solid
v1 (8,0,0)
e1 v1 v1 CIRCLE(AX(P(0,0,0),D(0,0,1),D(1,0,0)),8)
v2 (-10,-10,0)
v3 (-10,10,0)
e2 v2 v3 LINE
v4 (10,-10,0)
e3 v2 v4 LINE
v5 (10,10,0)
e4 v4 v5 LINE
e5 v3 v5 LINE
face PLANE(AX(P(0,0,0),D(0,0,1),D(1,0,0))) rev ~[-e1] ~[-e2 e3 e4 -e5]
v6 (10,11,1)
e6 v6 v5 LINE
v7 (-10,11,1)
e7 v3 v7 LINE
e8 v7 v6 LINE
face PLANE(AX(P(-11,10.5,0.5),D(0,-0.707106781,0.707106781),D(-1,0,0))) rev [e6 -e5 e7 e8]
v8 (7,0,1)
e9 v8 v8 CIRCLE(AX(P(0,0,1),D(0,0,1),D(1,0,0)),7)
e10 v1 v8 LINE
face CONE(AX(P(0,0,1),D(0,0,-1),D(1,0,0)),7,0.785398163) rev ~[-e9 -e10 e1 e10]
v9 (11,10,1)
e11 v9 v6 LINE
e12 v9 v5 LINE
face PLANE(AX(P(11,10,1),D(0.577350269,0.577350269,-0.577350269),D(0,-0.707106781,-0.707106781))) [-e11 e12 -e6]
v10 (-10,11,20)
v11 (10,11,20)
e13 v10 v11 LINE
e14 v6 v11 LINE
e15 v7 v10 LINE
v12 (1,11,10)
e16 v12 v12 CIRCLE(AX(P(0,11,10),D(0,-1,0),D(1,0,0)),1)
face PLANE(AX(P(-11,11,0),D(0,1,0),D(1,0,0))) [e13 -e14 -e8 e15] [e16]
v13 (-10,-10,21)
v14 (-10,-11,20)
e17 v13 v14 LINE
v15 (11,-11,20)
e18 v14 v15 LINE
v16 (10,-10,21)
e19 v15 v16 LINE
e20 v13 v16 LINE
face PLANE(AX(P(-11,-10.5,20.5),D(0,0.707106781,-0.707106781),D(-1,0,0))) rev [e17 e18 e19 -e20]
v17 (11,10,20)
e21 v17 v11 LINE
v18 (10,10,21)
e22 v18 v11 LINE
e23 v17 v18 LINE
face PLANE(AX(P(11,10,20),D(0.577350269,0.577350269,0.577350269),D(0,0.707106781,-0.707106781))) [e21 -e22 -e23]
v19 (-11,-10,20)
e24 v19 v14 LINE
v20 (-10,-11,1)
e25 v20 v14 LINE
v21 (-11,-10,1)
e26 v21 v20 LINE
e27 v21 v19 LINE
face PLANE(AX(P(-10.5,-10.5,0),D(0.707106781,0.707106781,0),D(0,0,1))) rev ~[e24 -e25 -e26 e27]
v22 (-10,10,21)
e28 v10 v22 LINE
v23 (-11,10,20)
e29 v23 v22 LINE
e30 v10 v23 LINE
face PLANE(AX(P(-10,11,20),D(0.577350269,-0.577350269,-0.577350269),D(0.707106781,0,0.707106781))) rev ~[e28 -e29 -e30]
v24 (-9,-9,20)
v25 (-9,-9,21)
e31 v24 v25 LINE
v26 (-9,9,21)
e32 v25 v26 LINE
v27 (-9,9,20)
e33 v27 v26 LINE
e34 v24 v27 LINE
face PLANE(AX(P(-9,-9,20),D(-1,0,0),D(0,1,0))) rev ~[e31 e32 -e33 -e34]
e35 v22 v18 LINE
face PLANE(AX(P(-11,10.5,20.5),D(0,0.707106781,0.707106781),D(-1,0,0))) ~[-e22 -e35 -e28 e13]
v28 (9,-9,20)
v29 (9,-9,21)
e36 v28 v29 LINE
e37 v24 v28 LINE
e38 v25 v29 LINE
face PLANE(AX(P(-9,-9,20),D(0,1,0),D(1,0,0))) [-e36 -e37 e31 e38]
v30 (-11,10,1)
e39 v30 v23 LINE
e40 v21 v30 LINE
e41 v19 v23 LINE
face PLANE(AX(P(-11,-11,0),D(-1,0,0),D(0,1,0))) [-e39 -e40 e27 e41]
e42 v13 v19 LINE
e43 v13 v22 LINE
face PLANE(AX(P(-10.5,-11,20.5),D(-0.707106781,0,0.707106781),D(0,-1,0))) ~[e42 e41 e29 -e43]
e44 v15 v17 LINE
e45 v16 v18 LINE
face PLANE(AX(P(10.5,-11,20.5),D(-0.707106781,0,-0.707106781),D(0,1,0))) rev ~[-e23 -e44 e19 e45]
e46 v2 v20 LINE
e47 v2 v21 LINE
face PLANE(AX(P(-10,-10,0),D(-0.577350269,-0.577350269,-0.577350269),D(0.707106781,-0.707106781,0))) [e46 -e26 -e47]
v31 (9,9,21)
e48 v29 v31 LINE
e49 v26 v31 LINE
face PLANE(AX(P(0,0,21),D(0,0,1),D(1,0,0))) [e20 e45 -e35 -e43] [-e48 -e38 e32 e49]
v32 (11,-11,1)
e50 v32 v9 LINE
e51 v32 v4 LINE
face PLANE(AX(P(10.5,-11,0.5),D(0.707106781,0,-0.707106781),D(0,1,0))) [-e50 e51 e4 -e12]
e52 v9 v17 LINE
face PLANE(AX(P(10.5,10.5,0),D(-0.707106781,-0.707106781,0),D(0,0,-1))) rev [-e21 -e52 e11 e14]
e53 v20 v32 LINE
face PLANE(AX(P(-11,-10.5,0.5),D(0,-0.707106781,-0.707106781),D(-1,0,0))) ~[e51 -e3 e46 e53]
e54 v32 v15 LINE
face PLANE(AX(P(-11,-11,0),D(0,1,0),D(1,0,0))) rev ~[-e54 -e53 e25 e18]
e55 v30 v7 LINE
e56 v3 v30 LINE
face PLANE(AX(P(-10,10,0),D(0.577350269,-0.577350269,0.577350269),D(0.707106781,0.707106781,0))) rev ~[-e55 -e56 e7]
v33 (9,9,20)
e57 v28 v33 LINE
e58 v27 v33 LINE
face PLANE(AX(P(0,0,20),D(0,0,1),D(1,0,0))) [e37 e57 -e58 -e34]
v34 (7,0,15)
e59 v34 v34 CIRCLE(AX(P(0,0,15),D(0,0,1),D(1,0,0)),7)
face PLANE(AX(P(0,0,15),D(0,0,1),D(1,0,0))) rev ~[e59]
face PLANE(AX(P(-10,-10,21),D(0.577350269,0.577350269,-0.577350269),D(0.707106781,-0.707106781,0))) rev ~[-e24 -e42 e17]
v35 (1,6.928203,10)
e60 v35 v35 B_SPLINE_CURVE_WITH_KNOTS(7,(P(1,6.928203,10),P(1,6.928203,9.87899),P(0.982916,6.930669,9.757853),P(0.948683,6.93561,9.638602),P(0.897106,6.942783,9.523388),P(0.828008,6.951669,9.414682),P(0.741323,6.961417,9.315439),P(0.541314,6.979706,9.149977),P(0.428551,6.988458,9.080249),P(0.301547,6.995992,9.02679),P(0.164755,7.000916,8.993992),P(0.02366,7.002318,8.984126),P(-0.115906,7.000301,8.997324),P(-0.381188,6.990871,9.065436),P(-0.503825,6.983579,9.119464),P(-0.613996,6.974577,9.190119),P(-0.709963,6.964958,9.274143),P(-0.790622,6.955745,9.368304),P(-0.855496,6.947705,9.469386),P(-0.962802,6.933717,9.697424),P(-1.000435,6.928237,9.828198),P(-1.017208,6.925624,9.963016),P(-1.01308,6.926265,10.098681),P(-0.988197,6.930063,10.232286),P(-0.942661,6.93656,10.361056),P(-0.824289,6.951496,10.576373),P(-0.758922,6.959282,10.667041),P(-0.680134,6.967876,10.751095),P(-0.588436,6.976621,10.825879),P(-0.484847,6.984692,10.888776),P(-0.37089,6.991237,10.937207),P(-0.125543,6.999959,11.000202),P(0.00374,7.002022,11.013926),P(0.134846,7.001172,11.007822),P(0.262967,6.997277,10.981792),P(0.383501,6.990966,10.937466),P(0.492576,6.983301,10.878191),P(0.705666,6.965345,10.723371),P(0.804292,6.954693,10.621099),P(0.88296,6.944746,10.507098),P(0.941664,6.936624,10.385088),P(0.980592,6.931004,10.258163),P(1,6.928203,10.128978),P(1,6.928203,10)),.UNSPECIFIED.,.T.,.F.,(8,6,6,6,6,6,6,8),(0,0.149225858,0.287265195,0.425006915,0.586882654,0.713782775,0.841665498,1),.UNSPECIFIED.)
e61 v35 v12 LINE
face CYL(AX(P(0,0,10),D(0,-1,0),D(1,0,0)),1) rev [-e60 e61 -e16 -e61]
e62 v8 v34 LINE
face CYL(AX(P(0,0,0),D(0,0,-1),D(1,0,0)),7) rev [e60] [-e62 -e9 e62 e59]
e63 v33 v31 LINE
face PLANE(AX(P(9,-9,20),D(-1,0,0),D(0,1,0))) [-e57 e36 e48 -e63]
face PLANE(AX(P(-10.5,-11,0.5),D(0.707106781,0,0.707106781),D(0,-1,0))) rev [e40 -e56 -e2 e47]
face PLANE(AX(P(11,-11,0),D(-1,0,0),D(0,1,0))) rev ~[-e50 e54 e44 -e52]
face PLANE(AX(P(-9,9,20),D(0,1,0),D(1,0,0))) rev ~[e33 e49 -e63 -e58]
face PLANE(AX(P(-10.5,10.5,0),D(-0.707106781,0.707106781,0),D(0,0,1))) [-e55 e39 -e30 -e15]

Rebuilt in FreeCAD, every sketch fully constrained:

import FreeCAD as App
import Part
import Sketcher
Q = App.Units.Quantity


def edges_at(feature, points):
    """Names of the edges that pass closest to the given points."""
    edges = feature.Shape.Edges
    near = lambda p: min(range(len(edges)), key=lambda i: edges[i].distToShape(Part.Vertex(*p))[0])
    return sorted({f"Edge{near(p) + 1}" for p in points})

doc = App.newDocument("Part")
body = doc.addObject("PartDesign::Body", "Body")

sketch1 = doc.addObject("Sketcher::SketchObject", "Sketch")
body.addObject(sketch1)
sketch1.AttachmentSupport = (doc.XZ_Plane, [""])
sketch1.MapMode = "FlatFace"
sketch1.addGeometry(Part.Circle(App.Vector(0, 10, 0), App.Vector(0, 0, 1), 1), False)
sketch1.addConstraint([
    Sketcher.Constraint("PointOnObject", 0, 3, -2),
    Sketcher.Constraint("Diameter", 0, Q("2 mm")),
    Sketcher.Constraint("DistanceY", -1, 1, 0, 3, Q("10 mm")),
])
pad1 = doc.addObject("PartDesign::Pad", "Pad")
body.addObject(pad1)
pad1.Profile = sketch1
pad1.Length = 28
pad1.Reversed = True
body2 = doc.addObject("PartDesign::Body", "Body001")

sketch2 = doc.addObject("Sketcher::SketchObject", "Sketch001")
body2.addObject(sketch2)
sketch2.AttachmentSupport = (doc.getObject("XY_Plane001"), [""])
sketch2.MapMode = "FlatFace"
sketch2.addGeometry(Part.Circle(App.Vector(0, 0, 0), App.Vector(0, 0, 1), 7), False)
sketch2.addConstraint([
    Sketcher.Constraint("Coincident", 0, 3, -1, 1),
    Sketcher.Constraint("Diameter", 0, Q("14 mm")),
])
pad2 = doc.addObject("PartDesign::Pad", "Pad001")
body2.addObject(pad2)
pad2.Profile = sketch2
pad2.Length = 15
body3 = doc.addObject("PartDesign::Body", "Body002")

sketch3 = doc.addObject("Sketcher::SketchObject", "Sketch002")
body3.addObject(sketch3)
sketch3.AttachmentSupport = (doc.getObject("XY_Plane002"), [""])
sketch3.MapMode = "FlatFace"
sketch3.AttachmentOffset = App.Placement(App.Vector(0, 0, 20), App.Rotation())
sketch3.addGeometry([
    Part.LineSegment(App.Vector(2, 20, 0), App.Vector(2, 2, 0)),
    Part.LineSegment(App.Vector(2, 2, 0), App.Vector(20, 2, 0)),
    Part.LineSegment(App.Vector(20, 2, 0), App.Vector(20, 20, 0)),
    Part.LineSegment(App.Vector(20, 20, 0), App.Vector(2, 20, 0)),
], False)
sketch3.addConstraint([
    Sketcher.Constraint("Coincident", 0, 2, 1, 1),
    Sketcher.Constraint("Coincident", 1, 2, 2, 1),
    Sketcher.Constraint("Coincident", 2, 2, 3, 1),
    Sketcher.Constraint("Coincident", 3, 2, 0, 1),
    Sketcher.Constraint("Vertical", 0),
    Sketcher.Constraint("Horizontal", 1),
    Sketcher.Constraint("Vertical", 2),
    Sketcher.Constraint("Horizontal", 3),
    Sketcher.Constraint("Equal", 3, 0),
    Sketcher.Constraint("DistanceX", 1, 1, 1, 2, Q("18 mm")),
    Sketcher.Constraint("DistanceX", -1, 1, 0, 2, Q("2 mm")),
    Sketcher.Constraint("DistanceY", -1, 1, 0, 2, Q("2 mm")),
])
pad3 = doc.addObject("PartDesign::Pad", "Pad002")
body3.addObject(pad3)
pad3.Profile = sketch3
pad3.Length = 1
body4 = doc.addObject("PartDesign::Body", "Body003")

sketch4 = doc.addObject("Sketcher::SketchObject", "Sketch003")
body4.addObject(sketch4)
sketch4.AttachmentSupport = (doc.getObject("XY_Plane003"), [""])
sketch4.MapMode = "FlatFace"
sketch4.addGeometry([
    Part.LineSegment(App.Vector(0, 22, 0), App.Vector(0, 0, 0)),
    Part.LineSegment(App.Vector(0, 0, 0), App.Vector(22, 0, 0)),
    Part.LineSegment(App.Vector(22, 0, 0), App.Vector(22, 22, 0)),
    Part.LineSegment(App.Vector(22, 22, 0), App.Vector(0, 22, 0)),
], False)
sketch4.addConstraint([
    Sketcher.Constraint("Coincident", 0, 2, 1, 1),
    Sketcher.Constraint("Coincident", 1, 2, 2, 1),
    Sketcher.Constraint("Coincident", 2, 2, 3, 1),
    Sketcher.Constraint("Coincident", 3, 2, 0, 1),
    Sketcher.Constraint("Vertical", 0),
    Sketcher.Constraint("Horizontal", 1),
    Sketcher.Constraint("Vertical", 2),
    Sketcher.Constraint("Horizontal", 3),
    Sketcher.Constraint("Coincident", 0, 2, -1, 1),
    Sketcher.Constraint("Equal", 3, 0),
    Sketcher.Constraint("DistanceX", 1, 1, 1, 2, Q("22 mm")),
])
pad4 = doc.addObject("PartDesign::Pad", "Pad003")
body4.addObject(pad4)
pad4.Profile = sketch4
pad4.Length = 21
doc.recompute()

boolean = doc.addObject("PartDesign::Boolean", "Boolean")
body4.addObject(boolean)
boolean.Type = "Cut"
boolean.addObjects([body3])
body5 = doc.addObject("PartDesign::Body", "Body004")
doc.recompute()

body4.Placement = App.Placement(App.Vector(-11, -11, 0), App.Rotation(App.Vector(0, 0, 1), 0))
boolean2 = doc.addObject("PartDesign::Boolean", "Boolean001")
body5.addObject(boolean2)
boolean2.Type = "Fuse"
boolean2.addObjects([body4])
doc.recompute()

boolean3 = doc.addObject("PartDesign::Boolean", "Boolean002")
body5.addObject(boolean3)
boolean3.Type = "Cut"
boolean3.addObjects([body2])
doc.recompute()

boolean4 = doc.addObject("PartDesign::Boolean", "Boolean003")
body5.addObject(boolean4)
boolean4.Type = "Cut"
boolean4.addObjects([body])
doc.recompute()

chamfer = doc.addObject("PartDesign::Chamfer", "Chamfer")
body5.addObject(chamfer)
chamfer.Base = (boolean4, edges_at(boolean4, [
    (-11, -11, 10.5),
    (-11, 0, 21),
    (-11, 11, 10.5),
    (-11, 0, 0),
    (0, -11, 0),
    (0, -11, 21),
    (0, 11, 21),
    (11, 0, 21),
    (0, 11, 0),
    (11, 11, 10.5),
    (11, 0, 0),
    (-7, 0, 0),
]))
chamfer.Size = 1

doc.recompute()
